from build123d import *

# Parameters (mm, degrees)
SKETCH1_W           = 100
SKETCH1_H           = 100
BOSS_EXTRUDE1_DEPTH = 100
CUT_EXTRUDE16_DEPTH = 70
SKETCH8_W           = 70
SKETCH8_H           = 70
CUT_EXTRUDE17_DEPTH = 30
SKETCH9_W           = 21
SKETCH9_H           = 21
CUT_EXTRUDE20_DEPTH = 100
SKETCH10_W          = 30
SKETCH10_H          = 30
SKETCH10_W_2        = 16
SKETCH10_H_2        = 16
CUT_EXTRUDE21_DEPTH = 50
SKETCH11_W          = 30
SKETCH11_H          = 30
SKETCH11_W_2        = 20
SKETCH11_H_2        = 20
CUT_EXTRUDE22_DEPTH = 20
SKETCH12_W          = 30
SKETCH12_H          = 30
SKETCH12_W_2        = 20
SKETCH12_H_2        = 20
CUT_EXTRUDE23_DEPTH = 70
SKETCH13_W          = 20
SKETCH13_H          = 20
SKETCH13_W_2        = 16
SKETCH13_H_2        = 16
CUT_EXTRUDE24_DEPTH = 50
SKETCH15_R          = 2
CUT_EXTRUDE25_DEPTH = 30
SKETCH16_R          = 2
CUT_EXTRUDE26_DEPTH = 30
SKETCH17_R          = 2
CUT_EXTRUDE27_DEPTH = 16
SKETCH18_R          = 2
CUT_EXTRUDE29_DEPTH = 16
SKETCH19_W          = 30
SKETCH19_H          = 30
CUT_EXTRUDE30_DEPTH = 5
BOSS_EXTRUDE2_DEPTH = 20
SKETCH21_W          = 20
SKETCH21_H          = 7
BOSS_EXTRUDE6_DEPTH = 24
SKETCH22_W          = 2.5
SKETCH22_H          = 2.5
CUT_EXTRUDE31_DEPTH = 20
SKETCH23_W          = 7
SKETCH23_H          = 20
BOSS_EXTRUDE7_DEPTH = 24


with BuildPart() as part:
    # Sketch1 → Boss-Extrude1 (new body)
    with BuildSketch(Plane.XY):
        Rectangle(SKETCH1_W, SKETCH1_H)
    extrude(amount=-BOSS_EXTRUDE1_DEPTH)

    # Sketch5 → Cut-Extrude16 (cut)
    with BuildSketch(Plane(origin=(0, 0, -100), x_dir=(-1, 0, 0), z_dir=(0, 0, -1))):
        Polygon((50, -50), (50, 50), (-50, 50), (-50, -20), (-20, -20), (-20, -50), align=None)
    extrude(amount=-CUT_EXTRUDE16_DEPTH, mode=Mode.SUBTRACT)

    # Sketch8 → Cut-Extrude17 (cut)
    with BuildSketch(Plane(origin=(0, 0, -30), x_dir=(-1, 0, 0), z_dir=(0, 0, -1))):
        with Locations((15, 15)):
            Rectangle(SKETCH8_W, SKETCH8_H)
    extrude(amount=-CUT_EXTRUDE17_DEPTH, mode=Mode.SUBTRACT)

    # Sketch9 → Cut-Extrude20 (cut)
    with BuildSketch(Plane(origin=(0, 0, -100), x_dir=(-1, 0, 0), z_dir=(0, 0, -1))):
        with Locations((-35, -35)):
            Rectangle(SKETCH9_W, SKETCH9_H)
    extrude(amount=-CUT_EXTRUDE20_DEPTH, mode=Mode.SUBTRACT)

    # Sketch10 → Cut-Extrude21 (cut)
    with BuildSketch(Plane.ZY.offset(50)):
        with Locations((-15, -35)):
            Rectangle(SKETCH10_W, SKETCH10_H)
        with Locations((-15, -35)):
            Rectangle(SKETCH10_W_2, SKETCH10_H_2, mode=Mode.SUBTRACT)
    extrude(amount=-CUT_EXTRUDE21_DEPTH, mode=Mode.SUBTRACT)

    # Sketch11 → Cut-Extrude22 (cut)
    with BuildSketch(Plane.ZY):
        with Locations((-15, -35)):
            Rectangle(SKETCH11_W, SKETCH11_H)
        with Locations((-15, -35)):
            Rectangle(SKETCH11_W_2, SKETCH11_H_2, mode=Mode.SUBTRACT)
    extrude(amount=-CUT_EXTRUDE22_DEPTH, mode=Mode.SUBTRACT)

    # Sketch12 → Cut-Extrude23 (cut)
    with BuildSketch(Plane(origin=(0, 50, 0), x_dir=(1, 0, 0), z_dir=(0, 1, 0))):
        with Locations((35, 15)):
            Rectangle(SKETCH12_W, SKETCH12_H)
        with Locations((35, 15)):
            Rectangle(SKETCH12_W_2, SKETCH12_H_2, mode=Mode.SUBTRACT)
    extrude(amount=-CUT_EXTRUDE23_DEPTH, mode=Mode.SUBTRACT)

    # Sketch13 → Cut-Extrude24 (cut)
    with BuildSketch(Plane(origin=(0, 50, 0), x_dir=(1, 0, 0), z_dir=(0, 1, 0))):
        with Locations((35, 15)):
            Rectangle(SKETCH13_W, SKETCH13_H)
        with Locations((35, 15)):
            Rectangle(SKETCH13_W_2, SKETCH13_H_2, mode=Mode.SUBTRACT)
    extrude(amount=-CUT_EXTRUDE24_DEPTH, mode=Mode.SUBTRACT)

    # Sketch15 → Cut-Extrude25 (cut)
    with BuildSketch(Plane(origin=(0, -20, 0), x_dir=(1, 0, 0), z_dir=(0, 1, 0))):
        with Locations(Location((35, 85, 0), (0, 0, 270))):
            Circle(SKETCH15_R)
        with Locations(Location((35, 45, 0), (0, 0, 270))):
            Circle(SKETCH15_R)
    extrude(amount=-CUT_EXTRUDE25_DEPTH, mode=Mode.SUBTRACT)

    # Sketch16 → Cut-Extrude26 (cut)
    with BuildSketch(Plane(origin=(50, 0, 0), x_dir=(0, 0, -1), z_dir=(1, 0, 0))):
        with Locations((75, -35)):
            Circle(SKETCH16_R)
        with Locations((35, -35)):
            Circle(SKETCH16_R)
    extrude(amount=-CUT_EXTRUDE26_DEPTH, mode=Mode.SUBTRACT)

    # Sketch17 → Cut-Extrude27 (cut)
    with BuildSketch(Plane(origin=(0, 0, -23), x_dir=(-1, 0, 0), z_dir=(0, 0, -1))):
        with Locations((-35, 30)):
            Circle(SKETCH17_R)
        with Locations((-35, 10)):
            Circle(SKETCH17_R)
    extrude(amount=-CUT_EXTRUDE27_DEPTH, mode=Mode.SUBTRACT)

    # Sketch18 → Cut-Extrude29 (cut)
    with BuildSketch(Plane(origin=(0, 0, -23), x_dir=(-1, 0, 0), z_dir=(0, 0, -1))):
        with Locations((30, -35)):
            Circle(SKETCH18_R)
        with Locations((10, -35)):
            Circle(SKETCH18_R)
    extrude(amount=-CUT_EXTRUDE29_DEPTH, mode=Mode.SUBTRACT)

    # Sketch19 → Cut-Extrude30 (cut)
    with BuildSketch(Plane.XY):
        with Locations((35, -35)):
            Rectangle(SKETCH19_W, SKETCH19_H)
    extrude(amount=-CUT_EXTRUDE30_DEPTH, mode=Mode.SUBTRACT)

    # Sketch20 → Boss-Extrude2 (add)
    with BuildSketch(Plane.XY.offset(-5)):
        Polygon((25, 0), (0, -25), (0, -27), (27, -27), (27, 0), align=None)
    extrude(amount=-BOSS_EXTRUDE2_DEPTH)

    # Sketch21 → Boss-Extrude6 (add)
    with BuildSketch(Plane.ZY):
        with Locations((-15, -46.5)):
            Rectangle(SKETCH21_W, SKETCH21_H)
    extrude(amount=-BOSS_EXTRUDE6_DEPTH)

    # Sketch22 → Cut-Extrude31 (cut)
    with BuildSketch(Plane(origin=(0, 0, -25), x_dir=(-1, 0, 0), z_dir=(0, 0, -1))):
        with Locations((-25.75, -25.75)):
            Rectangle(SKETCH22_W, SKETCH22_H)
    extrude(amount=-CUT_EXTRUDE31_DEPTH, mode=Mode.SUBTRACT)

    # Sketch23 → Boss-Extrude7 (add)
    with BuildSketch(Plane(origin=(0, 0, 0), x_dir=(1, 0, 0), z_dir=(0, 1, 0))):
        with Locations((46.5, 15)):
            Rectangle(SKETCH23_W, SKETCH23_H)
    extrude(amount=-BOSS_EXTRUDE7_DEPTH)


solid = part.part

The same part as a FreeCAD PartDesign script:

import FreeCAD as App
import Part
import Sketcher

V = App.Vector
Q = App.Units.Quantity

doc = App.newDocument("Part")
body = doc.addObject("PartDesign::Body", "Body")

# Sketch on XY plane
sketch1 = body.newObject("Sketcher::SketchObject", "Sketch")
sketch1.AttachmentSupport = (doc.getObject("XY_Plane"), [""])
sketch1.MapMode = "FlatFace"
sketch1.addGeometry([
    Part.LineSegment(V(-50, 50, 0), V(-50, -50, 0)),
    Part.LineSegment(V(-50, -50, 0), V(50, -50, 0)),
    Part.LineSegment(V(50, -50, 0), V(50, 50, 0)),
    Part.LineSegment(V(50, 50, 0), V(-50, 50, 0)),
], False)
sketch1.addConstraint([
    Sketcher.Constraint("Coincident", 0, 2, 1, 1),
    Sketcher.Constraint("Coincident", 1, 2, 2, 1),
    Sketcher.Constraint("Coincident", 2, 2, 3, 1),
    Sketcher.Constraint("Coincident", 3, 2, 0, 1),
    Sketcher.Constraint("Vertical", 0),
    Sketcher.Constraint("Horizontal", 1),
    Sketcher.Constraint("Vertical", 2),
    Sketcher.Constraint("Horizontal", 3),
    Sketcher.Constraint("Symmetric", 0, 2, 2, 2, -1, 1),
    Sketcher.Constraint("Equal", 3, 0),
    Sketcher.Constraint("DistanceX", 1, 1, 1, 2, Q("100 mm")),
])
pad1 = body.newObject("PartDesign::Pad", "Pad")
pad1.Profile = sketch1
pad1.Length = 100
pad1.Reversed = True

# Sketch on XY plane
sketch2 = body.newObject("Sketcher::SketchObject", "Sketch001")
sketch2.AttachmentSupport = (doc.getObject("XY_Plane"), [""])
sketch2.MapMode = "FlatFace"
sketch2.AttachmentOffset = App.Placement(V(0, 0, -100), App.Rotation())
sketch2.addGeometry([
    Part.LineSegment(V(-50, -50, 0), V(-50, 50, 0)),  # 0
    Part.LineSegment(V(-50, 50, 0), V(50, 50, 0)),  # 1
    Part.LineSegment(V(50, 50, 0), V(50, -20, 0)),  # 2
    Part.LineSegment(V(50, -20, 0), V(20, -20, 0)),  # 3
    Part.LineSegment(V(20, -20, 0), V(20, -50, 0)),  # 4
    Part.LineSegment(V(20, -50, 0), V(-50, -50, 0)),  # 5
], False)
sketch2.addConstraint([
    Sketcher.Constraint("Coincident", 0, 2, 1, 1),
    Sketcher.Constraint("Coincident", 1, 2, 2, 1),
    Sketcher.Constraint("Coincident", 2, 2, 3, 1),
    Sketcher.Constraint("Coincident", 3, 2, 4, 1),
    Sketcher.Constraint("Coincident", 4, 2, 5, 1),
    Sketcher.Constraint("Coincident", 5, 2, 0, 1),
    Sketcher.Constraint("Vertical", 0),
    Sketcher.Constraint("Horizontal", 1),
    Sketcher.Constraint("Vertical", 2),
    Sketcher.Constraint("Horizontal", 3),
    Sketcher.Constraint("Vertical", 4),
    Sketcher.Constraint("Horizontal", 5),
    Sketcher.Constraint("Symmetric", 1, 2, 5, 2, -1, 1),
    Sketcher.Constraint("Equal", 1, 0),
    Sketcher.Constraint("Equal", 5, 2),
    Sketcher.Constraint("DistanceX", 1, 1, 1, 2, Q("100 mm")),
    Sketcher.Constraint("DistanceX", 3, 2, 3, 1, Q("30 mm")),
])
pocket1 = body.newObject("PartDesign::Pocket", "Pocket")
pocket1.Profile = sketch2
pocket1.Length = 70
pocket1.Reversed = True

# Sketch on XY plane
sketch3 = body.newObject("Sketcher::SketchObject", "Sketch002")
sketch3.AttachmentSupport = (doc.getObject("XY_Plane"), [""])
sketch3.MapMode = "FlatFace"
sketch3.AttachmentOffset = App.Placement(V(0, 0, -30), App.Rotation())
sketch3.addGeometry([
    Part.LineSegment(V(20, 50, 0), V(20, -20, 0)),
    Part.LineSegment(V(20, -20, 0), V(-50, -20, 0)),
    Part.LineSegment(V(-50, -20, 0), V(-50, 50, 0)),
    Part.LineSegment(V(-50, 50, 0), V(20, 50, 0)),
], False)
sketch3.addConstraint([
    Sketcher.Constraint("Coincident", 0, 2, 1, 1),
    Sketcher.Constraint("Coincident", 1, 2, 2, 1),
    Sketcher.Constraint("Coincident", 2, 2, 3, 1),
    Sketcher.Constraint("Coincident", 3, 2, 0, 1),
    Sketcher.Constraint("Vertical", 0),
    Sketcher.Constraint("Horizontal", 1),
    Sketcher.Constraint("Vertical", 2),
    Sketcher.Constraint("Horizontal", 3),
    Sketcher.Constraint("Equal", 3, 0),
    Sketcher.Constraint("DistanceX", 1, 2, 1, 1, Q("70 mm")),
    Sketcher.Constraint("DistanceX", -1, 1, 0, 2, Q("20 mm")),
    Sketcher.Constraint("DistanceY", 0, 2, -1, 1, Q("20 mm")),
])
pocket2 = body.newObject("PartDesign::Pocket", "Pocket001")
pocket2.Profile = sketch3
pocket2.Length = 30
pocket2.Reversed = True

# Sketch on XY plane
sketch4 = body.newObject("Sketcher::SketchObject", "Sketch003")
sketch4.AttachmentSupport = (doc.getObject("XY_Plane"), [""])
sketch4.MapMode = "FlatFace"
sketch4.AttachmentOffset = App.Placement(V(0, 0, -100), App.Rotation())
sketch4.addGeometry([
    Part.LineSegment(V(46, -24, 0), V(46, -46, 0)),
    Part.LineSegment(V(46, -46, 0), V(24, -46, 0)),
    Part.LineSegment(V(24, -46, 0), V(24, -24, 0)),
    Part.LineSegment(V(24, -24, 0), V(46, -24, 0)),
], False)
sketch4.addConstraint([
    Sketcher.Constraint("Coincident", 0, 2, 1, 1),
    Sketcher.Constraint("Coincident", 1, 2, 2, 1),
    Sketcher.Constraint("Coincident", 2, 2, 3, 1),
    Sketcher.Constraint("Coincident", 3, 2, 0, 1),
    Sketcher.Constraint("Vertical", 0),
    Sketcher.Constraint("Horizontal", 1),
    Sketcher.Constraint("Vertical", 2),
    Sketcher.Constraint("Horizontal", 3),
    Sketcher.Constraint("Equal", 3, 0),
    Sketcher.Constraint("DistanceX", 1, 2, 1, 1, Q("21 mm")),
    Sketcher.Constraint("DistanceX", -1, 1, 0, 2, Q("45.5 mm")),
    Sketcher.Constraint("DistanceY", 0, 2, -1, 1, Q("45.5 mm")),
])
pocket3 = body.newObject("PartDesign::Pocket", "Pocket002")
pocket3.Profile = sketch4
pocket3.Length = 100
pocket3.Reversed = True

# Sketch on YZ plane
sketch5 = body.newObject("Sketcher::SketchObject", "Sketch004")
sketch5.AttachmentSupport = (doc.getObject("YZ_Plane"), [""])
sketch5.MapMode = "FlatFace"
sketch5.AttachmentOffset = App.Placement(V(0, 0, -50), App.Rotation())
sketch5.addGeometry([
    Part.LineSegment(V(-20, -30, 0), V(-50, -30, 0)),  # 0
    Part.LineSegment(V(-50, -30, 0), V(-50, 0, 0)),  # 1
    Part.LineSegment(V(-50, 0, 0), V(-20, 0, 0)),  # 2
    Part.LineSegment(V(-20, 0, 0), V(-20, -30, 0)),  # 3
    Part.LineSegment(V(-43, -7, 0), V(-43, -23, 0)),  # 4
    Part.LineSegment(V(-43, -23, 0), V(-27, -23, 0)),  # 5
    Part.LineSegment(V(-27, -23, 0), V(-27, -7, 0)),  # 6
    Part.LineSegment(V(-27, -7, 0), V(-43, -7, 0)),  # 7
], False)
sketch5.addConstraint([
    Sketcher.Constraint("Coincident", 0, 2, 1, 1),
    Sketcher.Constraint("Coincident", 1, 2, 2, 1),
    Sketcher.Constraint("Coincident", 2, 2, 3, 1),
    Sketcher.Constraint("Coincident", 3, 2, 0, 1),
    Sketcher.Constraint("Coincident", 4, 2, 5, 1),
    Sketcher.Constraint("Coincident", 5, 2, 6, 1),
    Sketcher.Constraint("Coincident", 6, 2, 7, 1),
    Sketcher.Constraint("Coincident", 7, 2, 4, 1),
    Sketcher.Constraint("Horizontal", 0),
    Sketcher.Constraint("Vertical", 1),
    Sketcher.Constraint("Horizontal", 2),
    Sketcher.Constraint("Vertical", 3),
    Sketcher.Constraint("Vertical", 4),
    Sketcher.Constraint("Horizontal", 5),
    Sketcher.Constraint("Vertical", 6),
    Sketcher.Constraint("Horizontal", 7),
    Sketcher.Constraint("PointOnObject", 1, 2, -1),
    Sketcher.Constraint("Equal", 2, 1),
    Sketcher.Constraint("Equal", 7, 4),
    Sketcher.Constraint("DistanceX", 0, 2, 0, 1, Q("30 mm")),
    Sketcher.Constraint("DistanceX", 5, 1, 5, 2, Q("16 mm")),
    Sketcher.Constraint("DistanceX", 0, 2, -1, 1, Q("50 mm")),
    Sketcher.Constraint("DistanceX", 4, 2, -1, 1, Q("43 mm")),
    Sketcher.Constraint("DistanceY", 4, 2, -1, 1, Q("23 mm")),
])
pocket4 = body.newObject("PartDesign::Pocket", "Pocket003")
pocket4.Profile = sketch5
pocket4.Length = 50
pocket4.Reversed = True

# Sketch on YZ plane
sketch6 = body.newObject("Sketcher::SketchObject", "Sketch005")
sketch6.AttachmentSupport = (doc.getObject("YZ_Plane"), [""])
sketch6.MapMode = "FlatFace"
sketch6.addGeometry([
    Part.LineSegment(V(-20, -30, 0), V(-50, -30, 0)),  # 0
    Part.LineSegment(V(-50, -30, 0), V(-50, 0, 0)),  # 1
    Part.LineSegment(V(-50, 0, 0), V(-20, 0, 0)),  # 2
    Part.LineSegment(V(-20, 0, 0), V(-20, -30, 0)),  # 3
    Part.LineSegment(V(-45, -5, 0), V(-45, -25, 0)),  # 4
    Part.LineSegment(V(-45, -25, 0), V(-25, -25, 0)),  # 5
    Part.LineSegment(V(-25, -25, 0), V(-25, -5, 0)),  # 6
    Part.LineSegment(V(-25, -5, 0), V(-45, -5, 0)),  # 7
], False)
sketch6.addConstraint([
    Sketcher.Constraint("Coincident", 0, 2, 1, 1),
    Sketcher.Constraint("Coincident", 1, 2, 2, 1),
    Sketcher.Constraint("Coincident", 2, 2, 3, 1),
    Sketcher.Constraint("Coincident", 3, 2, 0, 1),
    Sketcher.Constraint("Coincident", 4, 2, 5, 1),
    Sketcher.Constraint("Coincident", 5, 2, 6, 1),
    Sketcher.Constraint("Coincident", 6, 2, 7, 1),
    Sketcher.Constraint("Coincident", 7, 2, 4, 1),
    Sketcher.Constraint("Horizontal", 0),
    Sketcher.Constraint("Vertical", 1),
    Sketcher.Constraint("Horizontal", 2),
    Sketcher.Constraint("Vertical", 3),
    Sketcher.Constraint("Vertical", 4),
    Sketcher.Constraint("Horizontal", 5),
    Sketcher.Constraint("Vertical", 6),
    Sketcher.Constraint("Horizontal", 7),
    Sketcher.Constraint("PointOnObject", 1, 2, -1),
    Sketcher.Constraint("Equal", 2, 1),
    Sketcher.Constraint("Equal", 7, 4),
    Sketcher.Constraint("DistanceX", 0, 2, 0, 1, Q("30 mm")),
    Sketcher.Constraint("DistanceX", 5, 1, 5, 2, Q("20 mm")),
    Sketcher.Constraint("DistanceX", 0, 2, -1, 1, Q("50 mm")),
    Sketcher.Constraint("DistanceX", 4, 2, -1, 1, Q("45 mm")),
    Sketcher.Constraint("DistanceY", 4, 2, -1, 1, Q("25 mm")),
])
pocket5 = body.newObject("PartDesign::Pocket", "Pocket004")
pocket5.Profile = sketch6
pocket5.Length = 20
pocket5.Reversed = True

# Sketch on XZ plane
sketch7 = body.newObject("Sketcher::SketchObject", "Sketch006")
sketch7.AttachmentSupport = (doc.getObject("XZ_Plane"), [""])
sketch7.MapMode = "FlatFace"
sketch7.AttachmentOffset = App.Placement(V(0, 0, -50), App.Rotation())
sketch7.addGeometry([
    Part.LineSegment(V(20, -30, 0), V(20, 0, 0)),  # 0
    Part.LineSegment(V(20, 0, 0), V(50, 0, 0)),  # 1
    Part.LineSegment(V(50, 0, 0), V(50, -30, 0)),  # 2
    Part.LineSegment(V(50, -30, 0), V(20, -30, 0)),  # 3
    Part.LineSegment(V(45, -5, 0), V(25, -5, 0)),  # 4
    Part.LineSegment(V(25, -5, 0), V(25, -25, 0)),  # 5
    Part.LineSegment(V(25, -25, 0), V(45, -25, 0)),  # 6
    Part.LineSegment(V(45, -25, 0), V(45, -5, 0)),  # 7
], False)
sketch7.addConstraint([
    Sketcher.Constraint("Coincident", 0, 2, 1, 1),
    Sketcher.Constraint("Coincident", 1, 2, 2, 1),
    Sketcher.Constraint("Coincident", 2, 2, 3, 1),
    Sketcher.Constraint("Coincident", 3, 2, 0, 1),
    Sketcher.Constraint("Coincident", 4, 2, 5, 1),
    Sketcher.Constraint("Coincident", 5, 2, 6, 1),
    Sketcher.Constraint("Coincident", 6, 2, 7, 1),
    Sketcher.Constraint("Coincident", 7, 2, 4, 1),
    Sketcher.Constraint("Vertical", 0),
    Sketcher.Constraint("Horizontal", 1),
    Sketcher.Constraint("Vertical", 2),
    Sketcher.Constraint("Horizontal", 3),
    Sketcher.Constraint("Horizontal", 4),
    Sketcher.Constraint("Vertical", 5),
    Sketcher.Constraint("Horizontal", 6),
    Sketcher.Constraint("Vertical", 7),
    Sketcher.Constraint("PointOnObject", 0, 2, -1),
    Sketcher.Constraint("Equal", 3, 0),
    Sketcher.Constraint("Equal", 6, 5),
    Sketcher.Constraint("DistanceX", 1, 1, 1, 2, Q("30 mm")),
    Sketcher.Constraint("DistanceX", 4, 2, 4, 1, Q("20 mm")),
    Sketcher.Constraint("DistanceX", -1, 1, 0, 2, Q("20 mm")),
    Sketcher.Constraint("DistanceX", -1, 1, 4, 2, Q("25 mm")),
    Sketcher.Constraint("DistanceY", 4, 2, -1, 1, Q("5 mm")),
])
pocket6 = body.newObject("PartDesign::Pocket", "Pocket005")
pocket6.Profile = sketch7
pocket6.Length = 70
pocket6.Reversed = True

# Sketch on XZ plane
sketch8 = body.newObject("Sketcher::SketchObject", "Sketch007")
sketch8.AttachmentSupport = (doc.getObject("XZ_Plane"), [""])
sketch8.MapMode = "FlatFace"
sketch8.AttachmentOffset = App.Placement(V(0, 0, -50), App.Rotation())
sketch8.addGeometry([
    Part.LineSegment(V(25, -25, 0), V(25, -5, 0)),  # 0
    Part.LineSegment(V(25, -5, 0), V(45, -5, 0)),  # 1
    Part.LineSegment(V(45, -5, 0), V(45, -25, 0)),  # 2
    Part.LineSegment(V(45, -25, 0), V(25, -25, 0)),  # 3
    Part.LineSegment(V(43, -7, 0), V(27, -7, 0)),  # 4
    Part.LineSegment(V(27, -7, 0), V(27, -23, 0)),  # 5
    Part.LineSegment(V(27, -23, 0), V(43, -23, 0)),  # 6
    Part.LineSegment(V(43, -23, 0), V(43, -7, 0)),  # 7
], False)
sketch8.addConstraint([
    Sketcher.Constraint("Coincident", 0, 2, 1, 1),
    Sketcher.Constraint("Coincident", 1, 2, 2, 1),
    Sketcher.Constraint("Coincident", 2, 2, 3, 1),
    Sketcher.Constraint("Coincident", 3, 2, 0, 1),
    Sketcher.Constraint("Coincident", 4, 2, 5, 1),
    Sketcher.Constraint("Coincident", 5, 2, 6, 1),
    Sketcher.Constraint("Coincident", 6, 2, 7, 1),
    Sketcher.Constraint("Coincident", 7, 2, 4, 1),
    Sketcher.Constraint("Vertical", 0),
    Sketcher.Constraint("Horizontal", 1),
    Sketcher.Constraint("Vertical", 2),
    Sketcher.Constraint("Horizontal", 3),
    Sketcher.Constraint("Horizontal", 4),
    Sketcher.Constraint("Vertical", 5),
    Sketcher.Constraint("Horizontal", 6),
    Sketcher.Constraint("Vertical", 7),
    Sketcher.Constraint("Equal", 3, 0),
    Sketcher.Constraint("Equal", 6, 5),
    Sketcher.Constraint("DistanceX", 1, 1, 1, 2, Q("20 mm")),
    Sketcher.Constraint("DistanceX", 4, 2, 4, 1, Q("16 mm")),
    Sketcher.Constraint("DistanceX", -1, 1, 0, 2, Q("25 mm")),
    Sketcher.Constraint("DistanceY", 0, 2, -1, 1, Q("5 mm")),
    Sketcher.Constraint("DistanceX", -1, 1, 4, 2, Q("27 mm")),
    Sketcher.Constraint("DistanceY", 4, 2, -1, 1, Q("7 mm")),
])
pocket7 = body.newObject("PartDesign::Pocket", "Pocket006")
pocket7.Profile = sketch8
pocket7.Length = 50
pocket7.Reversed = True

# Sketch on XZ plane
sketch9 = body.newObject("Sketcher::SketchObject", "Sketch008")
sketch9.AttachmentSupport = (doc.getObject("XZ_Plane"), [""])
sketch9.MapMode = "FlatFace"
sketch9.AttachmentOffset = App.Placement(V(0, 0, 20), App.Rotation())
sketch9.addGeometry([
    Part.Circle(V(35, -85, 0), V(0, 0, 1), 2),
    Part.Circle(V(35, -45, 0), V(0, 0, 1), 2),
], False)
sketch9.addConstraint([
    Sketcher.Constraint("Equal", 0, 1),
    Sketcher.Constraint("Vertical", 0, 3, 1, 3),
    Sketcher.Constraint("Diameter", 0, Q("4 mm")),
    Sketcher.Constraint("DistanceX", -1, 1, 0, 3, Q("35 mm")),
    Sketcher.Constraint("DistanceY", 0, 3, -1, 1, Q("85 mm")),
    Sketcher.Constraint("DistanceY", 1, 3, -1, 1, Q("45 mm")),
])
pocket8 = body.newObject("PartDesign::Pocket", "Pocket007")
pocket8.Profile = sketch9
pocket8.Length = 30
pocket8.Reversed = True

# Sketch on YZ plane
sketch10 = body.newObject("Sketcher::SketchObject", "Sketch009")
sketch10.AttachmentSupport = (doc.getObject("YZ_Plane"), [""])
sketch10.MapMode = "FlatFace"
sketch10.AttachmentOffset = App.Placement(V(0, 0, 50), App.Rotation())
sketch10.addGeometry([
    Part.Circle(V(-35, -75, 0), V(0, 0, 1), 2),
    Part.Circle(V(-35, -35, 0), V(0, 0, 1), 2),
], False)
sketch10.addConstraint([
    Sketcher.Constraint("Equal", 0, 1),
    Sketcher.Constraint("Vertical", 0, 3, 1, 3),
    Sketcher.Constraint("Diameter", 0, Q("4 mm")),
    Sketcher.Constraint("DistanceX", 0, 3, -1, 1, Q("35 mm")),
    Sketcher.Constraint("DistanceY", 0, 3, -1, 1, Q("75 mm")),
    Sketcher.Constraint("DistanceY", 1, 3, -1, 1, Q("35 mm")),
])
pocket9 = body.newObject("PartDesign::Pocket", "Pocket008")
pocket9.Profile = sketch10
pocket9.Length = 30

# Sketch on XY plane
sketch11 = body.newObject("Sketcher::SketchObject", "Sketch010")
sketch11.AttachmentSupport = (doc.getObject("XY_Plane"), [""])
sketch11.MapMode = "FlatFace"
sketch11.AttachmentOffset = App.Placement(V(0, 0, -23), App.Rotation())
sketch11.addGeometry([
    Part.Circle(V(35, 30, 0), V(0, 0, 1), 2),
    Part.Circle(V(35, 10, 0), V(0, 0, 1), 2),
], False)
sketch11.addConstraint([
    Sketcher.Constraint("Equal", 0, 1),
    Sketcher.Constraint("Vertical", 0, 3, 1, 3),
    Sketcher.Constraint("Diameter", 0, Q("4 mm")),
    Sketcher.Constraint("DistanceX", -1, 1, 0, 3, Q("35 mm")),
    Sketcher.Constraint("DistanceY", -1, 1, 0, 3, Q("30 mm")),
    Sketcher.Constraint("DistanceY", -1, 1, 1, 3, Q("10 mm")),
])
pocket10 = body.newObject("PartDesign::Pocket", "Pocket009")
pocket10.Profile = sketch11
pocket10.Length = 16
pocket10.Reversed = True

# Sketch on XY plane
sketch12 = body.newObject("Sketcher::SketchObject", "Sketch011")
sketch12.AttachmentSupport = (doc.getObject("XY_Plane"), [""])
sketch12.MapMode = "FlatFace"
sketch12.AttachmentOffset = App.Placement(V(0, 0, -23), App.Rotation())
sketch12.addGeometry([
    Part.Circle(V(-30, -35, 0), V(0, 0, 1), 2),
    Part.Circle(V(-10, -35, 0), V(0, 0, 1), 2),
], False)
sketch12.addConstraint([
    Sketcher.Constraint("Equal", 0, 1),
    Sketcher.Constraint("Horizontal", 0, 3, 1, 3),
    Sketcher.Constraint("Diameter", 0, Q("4 mm")),
    Sketcher.Constraint("DistanceX", 0, 3, -1, 1, Q("30 mm")),
    Sketcher.Constraint("DistanceY", 0, 3, -1, 1, Q("35 mm")),
    Sketcher.Constraint("DistanceX", 1, 3, -1, 1, Q("10 mm")),
])
pocket11 = body.newObject("PartDesign::Pocket", "Pocket010")
pocket11.Profile = sketch12
pocket11.Length = 16
pocket11.Reversed = True

# Sketch on XY plane
sketch13 = body.newObject("Sketcher::SketchObject", "Sketch012")
sketch13.AttachmentSupport = (doc.getObject("XY_Plane"), [""])
sketch13.MapMode = "FlatFace"
sketch13.addGeometry([
    Part.LineSegment(V(20, -20, 0), V(20, -50, 0)),
    Part.LineSegment(V(20, -50, 0), V(50, -50, 0)),
    Part.LineSegment(V(50, -50, 0), V(50, -20, 0)),
    Part.LineSegment(V(50, -20, 0), V(20, -20, 0)),
], False)
sketch13.addConstraint([
    Sketcher.Constraint("Coincident", 0, 2, 1, 1),
    Sketcher.Constraint("Coincident", 1, 2, 2, 1),
    Sketcher.Constraint("Coincident", 2, 2, 3, 1),
    Sketcher.Constraint("Coincident", 3, 2, 0, 1),
    Sketcher.Constraint("Vertical", 0),
    Sketcher.Constraint("Horizontal", 1),
    Sketcher.Constraint("Vertical", 2),
    Sketcher.Constraint("Horizontal", 3),
    Sketcher.Constraint("Equal", 3, 0),
    Sketcher.Constraint("DistanceX", 1, 1, 1, 2, Q("30 mm")),
    Sketcher.Constraint("DistanceX", -1, 1, 0, 2, Q("20 mm")),
    Sketcher.Constraint("DistanceY", 0, 2, -1, 1, Q("50 mm")),
])
pocket12 = body.newObject("PartDesign::Pocket", "Pocket011")
pocket12.Profile = sketch13
pocket12.Length = 5

# Sketch on XY plane
sketch14 = body.newObject("Sketcher::SketchObject", "Sketch013")
sketch14.AttachmentSupport = (doc.getObject("XY_Plane"), [""])
sketch14.MapMode = "FlatFace"
sketch14.AttachmentOffset = App.Placement(V(0, 0, -5), App.Rotation())
sketch14.addGeometry([
    Part.LineSegment(V(25, 0, 0), V(0, -25, 0)),  # 0
    Part.LineSegment(V(0, -25, 0), V(0, -27, 0)),  # 1
    Part.LineSegment(V(0, -27, 0), V(27, -27, 0)),  # 2
    Part.LineSegment(V(27, -27, 0), V(27, 0, 0)),  # 3
    Part.LineSegment(V(27, 0, 0), V(25, 0, 0)),  # 4
], False)
sketch14.addConstraint([
    Sketcher.Constraint("Coincident", 0, 2, 1, 1),
    Sketcher.Constraint("Coincident", 1, 2, 2, 1),
    Sketcher.Constraint("Coincident", 2, 2, 3, 1),
    Sketcher.Constraint("Coincident", 3, 2, 4, 1),
    Sketcher.Constraint("Coincident", 4, 2, 0, 1),
    Sketcher.Constraint("Vertical", 1),
    Sketcher.Constraint("Horizontal", 2),
    Sketcher.Constraint("Vertical", 3),
    Sketcher.Constraint("Horizontal", 4),
    Sketcher.Constraint("PointOnObject", 0, 2, -2),
    Sketcher.Constraint("PointOnObject", 3, 2, -1),
    Sketcher.Constraint("Equal", 4, 1),
    Sketcher.Constraint("Equal", 2, 3),
    Sketcher.Constraint("DistanceX", 2, 1, 2, 2, Q("27 mm")),
    Sketcher.Constraint("DistanceX", 4, 2, 4, 1, Q("2 mm")),
])
pad2 = body.newObject("PartDesign::Pad", "Pad001")
pad2.Profile = sketch14
pad2.Length = 20
pad2.Reversed = True

# Sketch on YZ plane
sketch15 = body.newObject("Sketcher::SketchObject", "Sketch014")
sketch15.AttachmentSupport = (doc.getObject("YZ_Plane"), [""])
sketch15.MapMode = "FlatFace"
sketch15.addGeometry([
    Part.LineSegment(V(-43, -25, 0), V(-50, -25, 0)),
    Part.LineSegment(V(-50, -25, 0), V(-50, -5, 0)),
    Part.LineSegment(V(-50, -5, 0), V(-43, -5, 0)),
    Part.LineSegment(V(-43, -5, 0), V(-43, -25, 0)),
], False)
sketch15.addConstraint([
    Sketcher.Constraint("Coincident", 0, 2, 1, 1),
    Sketcher.Constraint("Coincident", 1, 2, 2, 1),
    Sketcher.Constraint("Coincident", 2, 2, 3, 1),
    Sketcher.Constraint("Coincident", 3, 2, 0, 1),
    Sketcher.Constraint("Horizontal", 0),
    Sketcher.Constraint("Vertical", 1),
    Sketcher.Constraint("Horizontal", 2),
    Sketcher.Constraint("Vertical", 3),
    Sketcher.Constraint("DistanceX", 0, 2, 0, 1, Q("7 mm")),
    Sketcher.Constraint("DistanceY", 1, 1, 1, 2, Q("20 mm")),
    Sketcher.Constraint("DistanceX", 0, 2, -1, 1, Q("50 mm")),
    Sketcher.Constraint("DistanceY", 0, 2, -1, 1, Q("25 mm")),
])
pad3 = body.newObject("PartDesign::Pad", "Pad002")
pad3.Profile = sketch15
pad3.Length = 24

# Sketch on XY plane
sketch16 = body.newObject("Sketcher::SketchObject", "Sketch015")
sketch16.AttachmentSupport = (doc.getObject("XY_Plane"), [""])
sketch16.MapMode = "FlatFace"
sketch16.AttachmentOffset = App.Placement(V(0, 0, -25), App.Rotation())
sketch16.addGeometry([
    Part.LineSegment(V(27, -24.5, 0), V(27, -27, 0)),
    Part.LineSegment(V(27, -27, 0), V(24.5, -27, 0)),
    Part.LineSegment(V(24.5, -27, 0), V(24.5, -24.5, 0)),
    Part.LineSegment(V(24.5, -24.5, 0), V(27, -24.5, 0)),
], False)
sketch16.addConstraint([
    Sketcher.Constraint("Coincident", 0, 2, 1, 1),
    Sketcher.Constraint("Coincident", 1, 2, 2, 1),
    Sketcher.Constraint("Coincident", 2, 2, 3, 1),
    Sketcher.Constraint("Coincident", 3, 2, 0, 1),
    Sketcher.Constraint("Vertical", 0),
    Sketcher.Constraint("Horizontal", 1),
    Sketcher.Constraint("Vertical", 2),
    Sketcher.Constraint("Horizontal", 3),
    Sketcher.Constraint("Equal", 3, 0),
    Sketcher.Constraint("DistanceX", 1, 2, 1, 1, Q("2.5 mm")),
    Sketcher.Constraint("DistanceX", -1, 1, 0, 2, Q("27 mm")),
    Sketcher.Constraint("DistanceY", 0, 2, -1, 1, Q("27 mm")),
])
pocket13 = body.newObject("PartDesign::Pocket", "Pocket012")
pocket13.Profile = sketch16
pocket13.Length = 20
pocket13.Reversed = True

# Sketch on XZ plane
sketch17 = body.newObject("Sketcher::SketchObject", "Sketch016")
sketch17.AttachmentSupport = (doc.getObject("XZ_Plane"), [""])
sketch17.MapMode = "FlatFace"
sketch17.addGeometry([
    Part.LineSegment(V(43, -25, 0), V(43, -5, 0)),
    Part.LineSegment(V(43, -5, 0), V(50, -5, 0)),
    Part.LineSegment(V(50, -5, 0), V(50, -25, 0)),
    Part.LineSegment(V(50, -25, 0), V(43, -25, 0)),
], False)
sketch17.addConstraint([
    Sketcher.Constraint("Coincident", 0, 2, 1, 1),
    Sketcher.Constraint("Coincident", 1, 2, 2, 1),
    Sketcher.Constraint("Coincident", 2, 2, 3, 1),
    Sketcher.Constraint("Coincident", 3, 2, 0, 1),
    Sketcher.Constraint("Vertical", 0),
    Sketcher.Constraint("Horizontal", 1),
    Sketcher.Constraint("Vertical", 2),
    Sketcher.Constraint("Horizontal", 3),
    Sketcher.Constraint("DistanceX", 1, 1, 1, 2, Q("7 mm")),
    Sketcher.Constraint("DistanceY", 0, 1, 0, 2, Q("20 mm")),
    Sketcher.Constraint("DistanceX", -1, 1, 0, 2, Q("43 mm")),
    Sketcher.Constraint("DistanceY", 0, 2, -1, 1, Q("5 mm")),
])
pad4 = body.newObject("PartDesign::Pad", "Pad003")
pad4.Profile = sketch17
pad4.Length = 24

doc.recompute()
